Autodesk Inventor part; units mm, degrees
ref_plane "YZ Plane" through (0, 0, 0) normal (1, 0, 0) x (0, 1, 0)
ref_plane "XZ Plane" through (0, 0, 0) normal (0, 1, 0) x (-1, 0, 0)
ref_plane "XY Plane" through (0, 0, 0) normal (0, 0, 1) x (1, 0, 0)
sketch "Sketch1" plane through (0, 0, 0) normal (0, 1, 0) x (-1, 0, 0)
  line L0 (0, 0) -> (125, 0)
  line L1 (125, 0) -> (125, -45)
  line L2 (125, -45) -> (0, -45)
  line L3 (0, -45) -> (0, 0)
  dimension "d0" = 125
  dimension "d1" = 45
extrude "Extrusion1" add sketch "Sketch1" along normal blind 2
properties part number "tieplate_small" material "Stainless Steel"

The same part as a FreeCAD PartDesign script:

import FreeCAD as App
import Part
import Sketcher
from FreeCAD import Vector


def add_polygon(sketch, points):
    """Adds a closed chain of lines whose ends are joined by coincident constraints."""
    first, n = sketch.GeometryCount, len(points)
    for a, b in zip(points, points[1:] + points[:1]):
        sketch.addGeometry(Part.LineSegment(App.Vector(*a, 0), App.Vector(*b, 0)), False)
    for i in range(n):
        sketch.addConstraint(Sketcher.Constraint("Coincident", first + i, 2, first + (i + 1) % n, 1))

doc = App.newDocument("Part")
body = doc.addObject("PartDesign::Body", "Body")

sketch1 = body.newObject("Sketcher::SketchObject", "Sketch")
sketch1.AttachmentSupport = (doc.getObject("XZ_Plane"), [""])
sketch1.MapMode = "FlatFace"
add_polygon(sketch1, [(-125, 0), (0, 0), (0, -45), (-125, -45)])
sketch1.addConstraint([
    Sketcher.Constraint("Horizontal", 0),
    Sketcher.Constraint("Vertical", 1),
    Sketcher.Constraint("Horizontal", 2),
    Sketcher.Constraint("Vertical", 3),
    Sketcher.Constraint("Coincident", 0, 2, -1, 1),
    Sketcher.Constraint("DistanceX", 0, 1, 0, 2, 125.0),
    Sketcher.Constraint("DistanceY", 1, 2, 1, 1, 45.0),
])
pad1 = body.newObject("PartDesign::Pad", "Pad")
pad1.Profile = sketch1
pad1.Length = 2
pad1.Reversed = True

doc.recompute()
